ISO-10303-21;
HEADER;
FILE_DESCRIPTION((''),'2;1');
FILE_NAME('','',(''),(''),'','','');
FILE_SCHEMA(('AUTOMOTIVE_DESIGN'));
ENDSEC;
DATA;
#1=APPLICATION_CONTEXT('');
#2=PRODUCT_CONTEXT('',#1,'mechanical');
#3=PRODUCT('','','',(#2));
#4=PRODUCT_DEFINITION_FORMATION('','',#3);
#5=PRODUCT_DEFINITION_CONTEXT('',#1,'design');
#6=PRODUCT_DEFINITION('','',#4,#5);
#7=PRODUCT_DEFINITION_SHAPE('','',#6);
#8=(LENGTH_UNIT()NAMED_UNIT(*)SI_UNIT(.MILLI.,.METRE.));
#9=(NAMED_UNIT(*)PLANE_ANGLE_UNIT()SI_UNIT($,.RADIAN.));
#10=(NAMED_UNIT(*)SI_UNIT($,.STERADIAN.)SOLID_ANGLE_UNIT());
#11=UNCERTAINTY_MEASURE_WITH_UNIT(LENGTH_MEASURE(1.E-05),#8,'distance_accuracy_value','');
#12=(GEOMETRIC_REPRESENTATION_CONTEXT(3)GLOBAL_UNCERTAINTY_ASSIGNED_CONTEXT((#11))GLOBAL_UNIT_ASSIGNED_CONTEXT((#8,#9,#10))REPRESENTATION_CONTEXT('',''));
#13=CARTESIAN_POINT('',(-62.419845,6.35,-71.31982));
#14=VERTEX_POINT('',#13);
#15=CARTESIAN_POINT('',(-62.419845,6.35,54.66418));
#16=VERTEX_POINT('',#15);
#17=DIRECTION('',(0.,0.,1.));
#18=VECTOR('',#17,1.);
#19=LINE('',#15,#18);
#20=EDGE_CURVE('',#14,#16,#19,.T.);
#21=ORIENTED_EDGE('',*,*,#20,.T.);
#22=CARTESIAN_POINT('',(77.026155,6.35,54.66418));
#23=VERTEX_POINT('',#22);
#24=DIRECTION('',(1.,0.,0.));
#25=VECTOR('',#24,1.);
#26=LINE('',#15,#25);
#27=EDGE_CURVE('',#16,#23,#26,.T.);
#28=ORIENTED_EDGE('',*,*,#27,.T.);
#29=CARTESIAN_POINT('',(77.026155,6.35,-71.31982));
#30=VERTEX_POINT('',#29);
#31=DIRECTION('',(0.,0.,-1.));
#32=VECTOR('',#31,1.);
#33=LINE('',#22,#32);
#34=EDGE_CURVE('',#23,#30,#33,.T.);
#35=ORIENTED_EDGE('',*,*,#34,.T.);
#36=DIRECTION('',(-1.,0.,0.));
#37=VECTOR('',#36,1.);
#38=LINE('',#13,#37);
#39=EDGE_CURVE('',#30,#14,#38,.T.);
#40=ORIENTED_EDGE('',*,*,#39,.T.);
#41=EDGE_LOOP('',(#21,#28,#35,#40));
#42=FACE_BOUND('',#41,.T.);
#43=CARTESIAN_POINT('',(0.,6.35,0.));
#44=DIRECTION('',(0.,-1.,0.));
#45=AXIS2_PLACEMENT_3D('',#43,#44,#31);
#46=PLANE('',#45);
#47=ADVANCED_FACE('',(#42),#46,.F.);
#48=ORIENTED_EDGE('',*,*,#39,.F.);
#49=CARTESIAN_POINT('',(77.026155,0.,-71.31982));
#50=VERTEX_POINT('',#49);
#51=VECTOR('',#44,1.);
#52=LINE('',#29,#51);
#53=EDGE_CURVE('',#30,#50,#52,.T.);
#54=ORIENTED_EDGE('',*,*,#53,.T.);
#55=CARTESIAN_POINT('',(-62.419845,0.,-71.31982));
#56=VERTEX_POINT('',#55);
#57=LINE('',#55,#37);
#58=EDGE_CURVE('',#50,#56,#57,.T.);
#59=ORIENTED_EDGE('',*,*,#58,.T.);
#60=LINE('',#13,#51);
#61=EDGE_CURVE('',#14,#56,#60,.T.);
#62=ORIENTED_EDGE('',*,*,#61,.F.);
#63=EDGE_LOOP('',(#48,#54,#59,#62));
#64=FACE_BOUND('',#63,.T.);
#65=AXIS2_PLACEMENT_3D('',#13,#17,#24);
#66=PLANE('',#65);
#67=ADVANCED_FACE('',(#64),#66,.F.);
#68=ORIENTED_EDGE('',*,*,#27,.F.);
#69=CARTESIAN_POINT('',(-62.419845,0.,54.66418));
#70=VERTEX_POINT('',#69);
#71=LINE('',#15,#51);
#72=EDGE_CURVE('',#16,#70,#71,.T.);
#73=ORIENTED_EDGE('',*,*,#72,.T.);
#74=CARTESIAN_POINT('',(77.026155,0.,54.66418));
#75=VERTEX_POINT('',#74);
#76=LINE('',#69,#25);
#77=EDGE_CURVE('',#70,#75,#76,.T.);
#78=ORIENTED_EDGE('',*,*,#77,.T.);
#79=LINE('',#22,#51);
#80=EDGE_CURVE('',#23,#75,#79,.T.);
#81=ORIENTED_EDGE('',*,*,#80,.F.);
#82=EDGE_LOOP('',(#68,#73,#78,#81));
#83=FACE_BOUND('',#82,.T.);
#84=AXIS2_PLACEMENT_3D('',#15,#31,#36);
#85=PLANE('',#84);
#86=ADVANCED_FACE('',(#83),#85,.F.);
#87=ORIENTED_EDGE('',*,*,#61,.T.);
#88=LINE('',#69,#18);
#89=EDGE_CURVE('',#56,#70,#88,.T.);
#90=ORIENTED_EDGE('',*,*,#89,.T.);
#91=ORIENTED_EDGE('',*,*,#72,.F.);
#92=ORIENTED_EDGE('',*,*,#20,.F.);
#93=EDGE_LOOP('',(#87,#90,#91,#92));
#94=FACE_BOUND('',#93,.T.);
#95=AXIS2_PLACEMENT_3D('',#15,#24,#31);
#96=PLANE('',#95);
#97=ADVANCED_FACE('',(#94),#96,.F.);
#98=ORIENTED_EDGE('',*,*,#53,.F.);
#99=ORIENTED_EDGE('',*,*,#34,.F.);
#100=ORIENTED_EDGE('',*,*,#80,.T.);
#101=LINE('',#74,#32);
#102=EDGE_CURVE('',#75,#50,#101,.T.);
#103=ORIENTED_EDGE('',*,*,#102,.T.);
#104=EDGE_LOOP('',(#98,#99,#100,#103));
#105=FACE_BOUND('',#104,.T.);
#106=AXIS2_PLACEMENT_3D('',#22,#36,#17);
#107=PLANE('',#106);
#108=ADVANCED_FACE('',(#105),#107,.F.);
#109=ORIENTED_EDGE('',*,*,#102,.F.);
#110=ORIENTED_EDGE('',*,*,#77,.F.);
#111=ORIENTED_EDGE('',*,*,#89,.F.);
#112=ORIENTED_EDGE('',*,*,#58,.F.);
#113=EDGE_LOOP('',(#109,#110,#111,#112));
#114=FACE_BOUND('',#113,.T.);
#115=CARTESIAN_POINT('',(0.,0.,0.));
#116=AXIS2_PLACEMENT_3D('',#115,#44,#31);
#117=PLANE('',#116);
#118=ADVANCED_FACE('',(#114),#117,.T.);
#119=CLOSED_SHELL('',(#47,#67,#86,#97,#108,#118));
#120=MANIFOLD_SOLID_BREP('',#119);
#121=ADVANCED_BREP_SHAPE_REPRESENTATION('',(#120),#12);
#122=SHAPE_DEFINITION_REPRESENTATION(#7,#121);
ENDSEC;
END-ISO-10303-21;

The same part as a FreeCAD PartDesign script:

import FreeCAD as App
import Part
import Sketcher
Q = App.Units.Quantity

doc = App.newDocument("Part")
body = doc.addObject("PartDesign::Body", "Body")

# Sketch on XZ plane
sketch1 = body.newObject("Sketcher::SketchObject", "Sketch")
sketch1.AttachmentSupport = (doc.getObject("XZ_Plane"), [""])
sketch1.MapMode = "FlatFace"
sketch1.addGeometry([
    Part.LineSegment(App.Vector(-62.419845, -71.31982, 0), App.Vector(-62.419845, 54.66418, 0)),
    Part.LineSegment(App.Vector(-62.419845, 54.66418, 0), App.Vector(77.026155, 54.66418, 0)),
    Part.LineSegment(App.Vector(77.026155, 54.66418, 0), App.Vector(77.026155, -71.31982, 0)),
    Part.LineSegment(App.Vector(77.026155, -71.31982, 0), App.Vector(-62.419845, -71.31982, 0)),
], False)
sketch1.addConstraint([
    Sketcher.Constraint("Coincident", 0, 2, 1, 1),
    Sketcher.Constraint("Coincident", 1, 2, 2, 1),
    Sketcher.Constraint("Coincident", 2, 2, 3, 1),
    Sketcher.Constraint("Coincident", 3, 2, 0, 1),
    Sketcher.Constraint("Vertical", 0),
    Sketcher.Constraint("Horizontal", 1),
    Sketcher.Constraint("Vertical", 2),
    Sketcher.Constraint("Horizontal", 3),
    Sketcher.Constraint("DistanceX", 1, 1, 1, 2, Q("5.49 in")),
    Sketcher.Constraint("DistanceY", 0, 1, 0, 2, Q("4.96 in")),
    Sketcher.Constraint("DistanceY", -1, 1, 0, 2, Q("54.66418 mm")),
    Sketcher.Constraint("DistanceX", 0, 2, -1, 1, Q("62.419845 mm")),
])
pad1 = body.newObject("PartDesign::Pad", "Pad")
pad1.Profile = sketch1
pad1.Length = Q("0.25 in")
pad1.Reversed = True

doc.recompute()
